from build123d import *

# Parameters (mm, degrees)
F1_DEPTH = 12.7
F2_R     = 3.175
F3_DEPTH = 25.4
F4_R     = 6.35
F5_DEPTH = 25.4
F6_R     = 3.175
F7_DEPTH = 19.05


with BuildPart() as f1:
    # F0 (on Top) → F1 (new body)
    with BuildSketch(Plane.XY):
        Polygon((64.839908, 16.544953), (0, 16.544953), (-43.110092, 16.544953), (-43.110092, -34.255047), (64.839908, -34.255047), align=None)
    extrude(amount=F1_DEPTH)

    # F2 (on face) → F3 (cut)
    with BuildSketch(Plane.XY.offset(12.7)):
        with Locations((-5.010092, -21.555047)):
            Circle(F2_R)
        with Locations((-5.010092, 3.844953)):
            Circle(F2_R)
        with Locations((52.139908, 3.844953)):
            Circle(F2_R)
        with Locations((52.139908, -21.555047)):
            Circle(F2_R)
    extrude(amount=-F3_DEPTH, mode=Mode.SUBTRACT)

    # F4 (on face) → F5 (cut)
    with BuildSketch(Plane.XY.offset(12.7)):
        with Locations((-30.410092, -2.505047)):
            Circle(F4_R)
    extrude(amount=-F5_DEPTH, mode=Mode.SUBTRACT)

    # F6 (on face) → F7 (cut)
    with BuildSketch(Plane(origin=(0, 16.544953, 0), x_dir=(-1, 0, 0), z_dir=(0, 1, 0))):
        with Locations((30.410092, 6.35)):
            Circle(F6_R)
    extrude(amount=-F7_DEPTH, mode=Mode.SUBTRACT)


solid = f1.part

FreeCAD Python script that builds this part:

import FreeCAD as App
import Part
import Sketcher
from FreeCAD import Vector
Q = App.Units.Quantity


def add_polygon(sketch, points):
    """Adds a closed chain of lines whose ends are joined by coincident constraints."""
    first, n = sketch.GeometryCount, len(points)
    for a, b in zip(points, points[1:] + points[:1]):
        sketch.addGeometry(Part.LineSegment(App.Vector(*a, 0), App.Vector(*b, 0)), False)
    for i in range(n):
        sketch.addConstraint(Sketcher.Constraint("Coincident", first + i, 2, first + (i + 1) % n, 1))

doc = App.newDocument("Part")
body = doc.addObject("PartDesign::Body", "Body")

# Sketch on XY plane
sketch1 = body.newObject("Sketcher::SketchObject", "Sketch")
sketch1.AttachmentSupport = (doc.getObject("XY_Plane"), [""])
sketch1.MapMode = "FlatFace"
add_polygon(sketch1, [(65, 17), (-43, 17), (-43, -34), (65, -34)])  # lines 0-3
sketch1.addConstraint([
    Sketcher.Constraint("Horizontal", 0),
    Sketcher.Constraint("Vertical", 1),
    Sketcher.Constraint("Horizontal", 2),
    Sketcher.Constraint("Vertical", 3),
    Sketcher.Constraint("DistanceY", 1, 2, 1, 1, Q("2 in")),
    Sketcher.Constraint("DistanceX", 0, 2, 0, 1, Q("4.25 in")),
    Sketcher.Constraint("DistanceX", 0, 2, -1, 1, Q("43.110092 mm")),
    Sketcher.Constraint("DistanceY", -1, 1, 0, 2, Q("16.544953 mm")),
])
pad1 = body.newObject("PartDesign::Pad", "Pad")
pad1.Profile = sketch1
pad1.Length = Q("0.5 in")

# Sketch on XY plane
sketch2 = body.newObject("Sketcher::SketchObject", "Sketch001")
sketch2.AttachmentSupport = (doc.getObject("XY_Plane"), [""])
sketch2.MapMode = "FlatFace"
sketch2.AttachmentOffset = App.Placement(Vector(0, 0, 0.5 * 25.4), App.Rotation())
sketch2.addGeometry([
    Part.Circle(Vector(-5, -21.6, 0), Vector(0, 0, 1), 3.2),
    Part.Circle(Vector(-5, 3.8, 0), Vector(0, 0, 1), 3.2),
    Part.Circle(Vector(52.1, 3.8, 0), Vector(0, 0, 1), 3.2),
    Part.Circle(Vector(52.1, -21.6, 0), Vector(0, 0, 1), 3.2),
], False)
sketch2.addConstraint([
    Sketcher.Constraint("Equal", 0, 1),
    Sketcher.Constraint("Equal", 1, 2),
    Sketcher.Constraint("Equal", 2, 3),
    Sketcher.Constraint("Horizontal", 1, 3, 2, 3),
    Sketcher.Constraint("Horizontal", 0, 3, 3, 3),
    Sketcher.Constraint("Vertical", 0, 3, 1, 3),
    Sketcher.Constraint("Vertical", 2, 3, 3, 3),
    Sketcher.Constraint("Diameter", 0, Q("0.25 in")),
    Sketcher.Constraint("DistanceY", 0, 3, 1, 3, Q("1 in")),
    Sketcher.Constraint("DistanceX", 1, 3, 2, 3, Q("2.25 in")),
    Sketcher.Constraint("DistanceX", 0, 3, -1, 1, Q("5.010092 mm")),
    Sketcher.Constraint("DistanceY", 0, 3, -1, 1, Q("21.555047 mm")),
])
pocket1 = body.newObject("PartDesign::Pocket", "Pocket")
pocket1.Profile = sketch2
pocket1.Length = Q("1 in")

# Sketch on XY plane
sketch3 = body.newObject("Sketcher::SketchObject", "Sketch002")
sketch3.AttachmentSupport = (doc.getObject("XY_Plane"), [""])
sketch3.MapMode = "FlatFace"
sketch3.AttachmentOffset = App.Placement(Vector(0, 0, 0.5 * 25.4), App.Rotation())
sketch3.addGeometry(Part.Circle(Vector(-30, -3, 0), Vector(0, 0, 1), 6), False)
sketch3.addConstraint([
    Sketcher.Constraint("Diameter", 0, Q("0.5 in")),
    Sketcher.Constraint("DistanceX", 0, 3, -1, 1, Q("30.410092 mm")),
    Sketcher.Constraint("DistanceY", 0, 3, -1, 1, Q("2.505047 mm")),
])
pocket2 = body.newObject("PartDesign::Pocket", "Pocket001")
pocket2.Profile = sketch3
pocket2.Length = Q("1 in")

# Sketch on XZ plane
sketch4 = body.newObject("Sketcher::SketchObject", "Sketch003")
sketch4.AttachmentSupport = (doc.getObject("XZ_Plane"), [""])
sketch4.MapMode = "FlatFace"
sketch4.AttachmentOffset = App.Placement(Vector(0, 0, -16.544953), App.Rotation())
sketch4.addGeometry(Part.Circle(Vector(-30.4, 6.3, 0), Vector(0, 0, 1), 3.2), False)
sketch4.addConstraint([
    Sketcher.Constraint("Diameter", 0, Q("0.25 in")),
    Sketcher.Constraint("DistanceY", -1, 1, 0, 3, Q("0.25 in")),
    Sketcher.Constraint("DistanceX", 0, 3, -1, 1, Q("30.410092 mm")),
])
pocket3 = body.newObject("PartDesign::Pocket", "Pocket002")
pocket3.Profile = sketch4
pocket3.Length = Q("0.75 in")
pocket3.Reversed = True

doc.recompute()
